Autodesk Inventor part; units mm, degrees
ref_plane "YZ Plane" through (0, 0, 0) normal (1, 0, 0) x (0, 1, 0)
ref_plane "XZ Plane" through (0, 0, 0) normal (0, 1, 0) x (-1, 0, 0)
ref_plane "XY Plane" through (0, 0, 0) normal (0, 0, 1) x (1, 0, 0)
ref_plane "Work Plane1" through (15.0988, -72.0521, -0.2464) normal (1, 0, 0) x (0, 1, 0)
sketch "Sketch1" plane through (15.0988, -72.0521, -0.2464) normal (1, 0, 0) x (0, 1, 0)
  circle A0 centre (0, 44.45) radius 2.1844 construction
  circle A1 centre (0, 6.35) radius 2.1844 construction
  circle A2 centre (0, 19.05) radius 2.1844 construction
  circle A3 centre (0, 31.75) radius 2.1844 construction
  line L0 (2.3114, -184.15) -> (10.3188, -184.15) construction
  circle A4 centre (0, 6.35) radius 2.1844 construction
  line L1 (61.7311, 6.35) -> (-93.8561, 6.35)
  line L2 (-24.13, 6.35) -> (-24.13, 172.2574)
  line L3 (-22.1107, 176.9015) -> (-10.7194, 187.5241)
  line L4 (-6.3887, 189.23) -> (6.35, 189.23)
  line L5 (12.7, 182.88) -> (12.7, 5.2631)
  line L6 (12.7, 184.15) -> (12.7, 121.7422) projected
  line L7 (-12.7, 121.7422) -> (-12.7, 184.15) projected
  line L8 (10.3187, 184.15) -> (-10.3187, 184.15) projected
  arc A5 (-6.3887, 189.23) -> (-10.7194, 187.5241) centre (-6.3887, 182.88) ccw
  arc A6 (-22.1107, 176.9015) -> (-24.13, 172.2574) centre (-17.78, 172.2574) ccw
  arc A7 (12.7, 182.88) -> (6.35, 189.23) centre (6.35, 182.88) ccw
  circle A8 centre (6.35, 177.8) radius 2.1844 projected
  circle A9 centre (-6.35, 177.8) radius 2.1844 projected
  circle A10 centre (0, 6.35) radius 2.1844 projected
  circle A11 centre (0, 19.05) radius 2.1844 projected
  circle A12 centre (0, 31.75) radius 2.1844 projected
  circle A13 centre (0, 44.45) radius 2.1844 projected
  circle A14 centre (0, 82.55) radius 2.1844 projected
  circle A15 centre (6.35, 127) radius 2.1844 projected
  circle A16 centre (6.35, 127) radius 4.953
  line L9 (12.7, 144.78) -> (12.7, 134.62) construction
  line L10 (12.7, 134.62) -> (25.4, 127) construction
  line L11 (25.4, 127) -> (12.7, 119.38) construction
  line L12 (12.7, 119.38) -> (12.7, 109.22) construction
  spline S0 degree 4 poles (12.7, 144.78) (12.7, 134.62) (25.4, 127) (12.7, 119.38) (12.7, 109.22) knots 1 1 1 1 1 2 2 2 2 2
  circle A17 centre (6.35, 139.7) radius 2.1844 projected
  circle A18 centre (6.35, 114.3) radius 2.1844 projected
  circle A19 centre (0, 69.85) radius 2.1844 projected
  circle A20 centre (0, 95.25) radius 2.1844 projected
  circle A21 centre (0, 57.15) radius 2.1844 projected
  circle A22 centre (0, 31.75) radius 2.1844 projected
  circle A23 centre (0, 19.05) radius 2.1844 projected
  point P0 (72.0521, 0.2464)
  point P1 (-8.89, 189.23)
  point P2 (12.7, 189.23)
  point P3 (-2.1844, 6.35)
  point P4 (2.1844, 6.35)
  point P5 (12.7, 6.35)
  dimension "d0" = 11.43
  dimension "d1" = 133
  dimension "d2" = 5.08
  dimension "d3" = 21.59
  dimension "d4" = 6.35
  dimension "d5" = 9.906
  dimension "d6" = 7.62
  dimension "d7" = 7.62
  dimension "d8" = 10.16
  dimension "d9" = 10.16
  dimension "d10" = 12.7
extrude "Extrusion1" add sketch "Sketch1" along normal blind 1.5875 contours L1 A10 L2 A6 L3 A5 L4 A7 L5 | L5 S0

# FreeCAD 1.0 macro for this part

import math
import FreeCAD as App
import Part
import Sketcher
Q = App.Units.Quantity

doc = App.newDocument("Part")
body = doc.addObject("PartDesign::Body", "Body")

# Sketch on YZ plane
sketch1 = doc.addObject("Sketcher::SketchObject", "Sketch")
body.addObject(sketch1)
sketch1.AttachmentSupport = (doc.YZ_Plane, [""])
sketch1.MapMode = "FlatFace"
sketch1.AttachmentOffset = App.Placement(App.Vector(0, 0, 15.0988), App.Rotation())
sketch1.addGeometry(Part.LineSegment(App.Vector(-69.8677, 6.1036, 0), App.Vector(-59.3521, 6.1036, 0)), False)
sketch1.addGeometry(Part.LineSegment(App.Vector(-59.3521, 6.1036, 0), App.Vector(-59.3521, 108.9736, 0)), False)
sketch1.addGeometry(Part.BSplineCurve([App.Vector(-59.3521, 144.5336, 0), App.Vector(-59.3521, 134.3736, 0), App.Vector(-46.6521, 126.7536, 0), App.Vector(-59.3521, 119.1336, 0), App.Vector(-59.3521, 108.9736, 0)], [5, 5], [1, 2], False, 4, [1, 1, 1, 1, 1], False), False)
sketch1.addGeometry(Part.LineSegment(App.Vector(-59.3521, 144.5336, 0), App.Vector(-59.3521, 182.6336, 0)), False)
sketch1.addGeometry(Part.ArcOfCircle(Part.Circle(App.Vector(-65.7021, 182.6336, 0), App.Vector(0, 0, 1), 6.35), math.radians(0), math.radians(90)), False)
sketch1.addGeometry(Part.LineSegment(App.Vector(-65.7021, 188.9836, 0), App.Vector(-78.4408, 188.9836, 0)), False)
sketch1.addGeometry(Part.ArcOfCircle(Part.Circle(App.Vector(-78.4408, 182.6336, 0), App.Vector(0, 0, 1), 6.35), math.radians(90), math.radians(133.000044)), False)
sketch1.addGeometry(Part.LineSegment(App.Vector(-82.7715, 187.2777, 0), App.Vector(-94.1628, 176.6551, 0)), False)
sketch1.addGeometry(Part.ArcOfCircle(Part.Circle(App.Vector(-89.8321, 172.011, 0), App.Vector(0, 0, 1), 6.35001), math.radians(133.000044), math.radians(180)), False)
sketch1.addGeometry(Part.LineSegment(App.Vector(-96.1821, 172.011, 0), App.Vector(-96.1821, 6.1036, 0)), False)
sketch1.addGeometry(Part.LineSegment(App.Vector(-96.1821, 6.1036, 0), App.Vector(-74.2365, 6.1036, 0)), False)
sketch1.addGeometry(Part.ArcOfCircle(Part.Circle(App.Vector(-72.0521, 6.1036, 0), App.Vector(0, 0, 1), 2.1844), math.radians(0), math.radians(180)), False)
sketch1.addGeometry(Part.Circle(App.Vector(-72.0521, 18.8036, 0), App.Vector(0, 0, 1), 2.1844), False)
sketch1.addGeometry(Part.Circle(App.Vector(-72.0521, 31.5036, 0), App.Vector(0, 0, 1), 2.1844), False)
sketch1.addGeometry(Part.Circle(App.Vector(-72.0521, 44.2036, 0), App.Vector(0, 0, 1), 2.1844), False)
sketch1.addGeometry(Part.Circle(App.Vector(-72.0521, 56.9036, 0), App.Vector(0, 0, 1), 2.1844), False)
sketch1.addGeometry(Part.Circle(App.Vector(-72.0521, 69.6036, 0), App.Vector(0, 0, 1), 2.1844), False)
sketch1.addGeometry(Part.Circle(App.Vector(-72.0521, 82.3036, 0), App.Vector(0, 0, 1), 2.1844), False)
sketch1.addGeometry(Part.Circle(App.Vector(-72.0521, 95.0036, 0), App.Vector(0, 0, 1), 2.1844), False)
sketch1.addGeometry(Part.Circle(App.Vector(-78.4021, 177.5536, 0), App.Vector(0, 0, 1), 2.1844), False)
sketch1.addGeometry(Part.Circle(App.Vector(-65.7021, 114.0536, 0), App.Vector(0, 0, 1), 2.1844), False)
sketch1.addGeometry(Part.Circle(App.Vector(-65.7021, 126.7536, 0), App.Vector(0, 0, 1), 4.953), False)
sketch1.addGeometry(Part.Circle(App.Vector(-65.7021, 139.4536, 0), App.Vector(0, 0, 1), 2.1844), False)
sketch1.addGeometry(Part.Circle(App.Vector(-65.7021, 177.5536, 0), App.Vector(0, 0, 1), 2.1844), False)
sketch1.addConstraint(Sketcher.Constraint("Block", 2))
sketch1.addConstraint(Sketcher.Constraint("Coincident", 0, 2, 1, 1))
sketch1.addConstraint(Sketcher.Constraint("Coincident", 1, 2, 2, 2))
sketch1.addConstraint(Sketcher.Constraint("Coincident", 2, 1, 3, 1))
sketch1.addConstraint(Sketcher.Constraint("Tangent", 3, 2, 4, 1))
sketch1.addConstraint(Sketcher.Constraint("Tangent", 4, 2, 5, 1))
sketch1.addConstraint(Sketcher.Constraint("Tangent", 5, 2, 6, 1))
sketch1.addConstraint(Sketcher.Constraint("Tangent", 6, 2, 7, 1))
sketch1.addConstraint(Sketcher.Constraint("Tangent", 7, 2, 8, 1))
sketch1.addConstraint(Sketcher.Constraint("Tangent", 8, 2, 9, 1))
sketch1.addConstraint(Sketcher.Constraint("Coincident", 9, 2, 10, 1))
sketch1.addConstraint(Sketcher.Constraint("Coincident", 10, 2, 11, 2))
sketch1.addConstraint(Sketcher.Constraint("Coincident", 11, 1, 0, 1))
sketch1.addConstraint(Sketcher.Constraint("Horizontal", 0))
sketch1.addConstraint(Sketcher.Constraint("Vertical", 1))
sketch1.addConstraint(Sketcher.Constraint("Vertical", 3))
sketch1.addConstraint(Sketcher.Constraint("Horizontal", 5))
sketch1.addConstraint(Sketcher.Constraint("Vertical", 9))
sketch1.addConstraint(Sketcher.Constraint("Horizontal", 10))
sketch1.addConstraint(Sketcher.Constraint("Equal", 4, 6))
sketch1.addConstraint(Sketcher.Constraint("Equal", 6, 8))
sketch1.addConstraint(Sketcher.Constraint("Equal", 11, 12))
sketch1.addConstraint(Sketcher.Constraint("Equal", 12, 13))
sketch1.addConstraint(Sketcher.Constraint("Equal", 13, 14))
sketch1.addConstraint(Sketcher.Constraint("Equal", 14, 15))
sketch1.addConstraint(Sketcher.Constraint("Equal", 15, 16))
sketch1.addConstraint(Sketcher.Constraint("Equal", 16, 17))
sketch1.addConstraint(Sketcher.Constraint("Equal", 17, 18))
sketch1.addConstraint(Sketcher.Constraint("Equal", 18, 19))
sketch1.addConstraint(Sketcher.Constraint("Equal", 19, 20))
sketch1.addConstraint(Sketcher.Constraint("Equal", 20, 22))
sketch1.addConstraint(Sketcher.Constraint("Equal", 22, 23))
sketch1.addConstraint(Sketcher.Constraint("Horizontal", 19, 3, 23, 3))
sketch1.addConstraint(Sketcher.Constraint("Horizontal", 11, 3, 0, 2))
sketch1.addConstraint(Sketcher.Constraint("Horizontal", 0, 2, 9, 2))
sketch1.addConstraint(Sketcher.Constraint("Vertical", 11, 3, 12, 3))
sketch1.addConstraint(Sketcher.Constraint("Vertical", 12, 3, 13, 3))
sketch1.addConstraint(Sketcher.Constraint("Vertical", 13, 3, 14, 3))
sketch1.addConstraint(Sketcher.Constraint("Vertical", 14, 3, 15, 3))
sketch1.addConstraint(Sketcher.Constraint("Vertical", 15, 3, 16, 3))
sketch1.addConstraint(Sketcher.Constraint("Vertical", 16, 3, 17, 3))
sketch1.addConstraint(Sketcher.Constraint("Vertical", 17, 3, 18, 3))
sketch1.addConstraint(Sketcher.Constraint("Vertical", 4, 3, 20, 3))
sketch1.addConstraint(Sketcher.Constraint("Vertical", 20, 3, 21, 3))
sketch1.addConstraint(Sketcher.Constraint("Vertical", 21, 3, 22, 3))
sketch1.addConstraint(Sketcher.Constraint("Vertical", 22, 3, 23, 3))
sketch1.addConstraint(Sketcher.Constraint("Diameter", 21, Q("0.39 in")))
sketch1.addConstraint(Sketcher.Constraint("Radius", 4, Q("0.25 in")))
sketch1.addConstraint(Sketcher.Constraint("DistanceY", 11, 3, 12, 3, Q("0.5 in")))
sketch1.addConstraint(Sketcher.Constraint("DistanceY", 12, 3, 13, 3, Q("0.5 in")))
sketch1.addConstraint(Sketcher.Constraint("DistanceY", 13, 3, 14, 3, Q("0.5 in")))
sketch1.addConstraint(Sketcher.Constraint("DistanceY", 14, 3, 15, 3, Q("0.5 in")))
sketch1.addConstraint(Sketcher.Constraint("DistanceY", 15, 3, 16, 3, Q("0.5 in")))
sketch1.addConstraint(Sketcher.Constraint("DistanceY", 16, 3, 17, 3, Q("0.5 in")))
sketch1.addConstraint(Sketcher.Constraint("DistanceY", 17, 3, 18, 3, Q("0.5 in")))
sketch1.addConstraint(Sketcher.Constraint("DistanceY", 19, 3, 6, 3, Q("0.2 in")))
sketch1.addConstraint(Sketcher.Constraint("DistanceX", 19, 3, 4, 3, Q("0.5 in")))
sketch1.addConstraint(Sketcher.Constraint("DistanceY", 20, 3, 21, 3, Q("0.5 in")))
sketch1.addConstraint(Sketcher.Constraint("DistanceY", 21, 3, 22, 3, Q("0.5 in")))
sketch1.addConstraint(Sketcher.Constraint("DistanceX", 11, 3, 0, 2, Q("0.5 in")))
sketch1.addConstraint(Sketcher.Constraint("DistanceY", 1, 2, 20, 3, Q("0.2 in")))
sketch1.addConstraint(Sketcher.Constraint("DistanceX", 8, 3, 19, 3, Q("0.45 in")))
sketch1.addConstraint(Sketcher.Constraint("Diameter", 12, Q("0.172 in")))
sketch1.addConstraint(Sketcher.Constraint("DistanceY", 3, 1, 3, 2, Q("1.5 in")))
sketch1.addConstraint(Sketcher.Constraint("Angle", 7, Q("-137 deg")))
sketch1.addConstraint(Sketcher.Constraint("DistanceY", 1, 1, 1, 2, Q("4.05 in")))
sketch1.addConstraint(Sketcher.Constraint("DistanceX", 5, 2, 5, 1, 12.7387))
pad1 = doc.addObject("PartDesign::Pad", "Pad")
body.addObject(pad1)
pad1.Profile = sketch1
pad1.Length = Q("0.0625 in")

doc.recompute()
